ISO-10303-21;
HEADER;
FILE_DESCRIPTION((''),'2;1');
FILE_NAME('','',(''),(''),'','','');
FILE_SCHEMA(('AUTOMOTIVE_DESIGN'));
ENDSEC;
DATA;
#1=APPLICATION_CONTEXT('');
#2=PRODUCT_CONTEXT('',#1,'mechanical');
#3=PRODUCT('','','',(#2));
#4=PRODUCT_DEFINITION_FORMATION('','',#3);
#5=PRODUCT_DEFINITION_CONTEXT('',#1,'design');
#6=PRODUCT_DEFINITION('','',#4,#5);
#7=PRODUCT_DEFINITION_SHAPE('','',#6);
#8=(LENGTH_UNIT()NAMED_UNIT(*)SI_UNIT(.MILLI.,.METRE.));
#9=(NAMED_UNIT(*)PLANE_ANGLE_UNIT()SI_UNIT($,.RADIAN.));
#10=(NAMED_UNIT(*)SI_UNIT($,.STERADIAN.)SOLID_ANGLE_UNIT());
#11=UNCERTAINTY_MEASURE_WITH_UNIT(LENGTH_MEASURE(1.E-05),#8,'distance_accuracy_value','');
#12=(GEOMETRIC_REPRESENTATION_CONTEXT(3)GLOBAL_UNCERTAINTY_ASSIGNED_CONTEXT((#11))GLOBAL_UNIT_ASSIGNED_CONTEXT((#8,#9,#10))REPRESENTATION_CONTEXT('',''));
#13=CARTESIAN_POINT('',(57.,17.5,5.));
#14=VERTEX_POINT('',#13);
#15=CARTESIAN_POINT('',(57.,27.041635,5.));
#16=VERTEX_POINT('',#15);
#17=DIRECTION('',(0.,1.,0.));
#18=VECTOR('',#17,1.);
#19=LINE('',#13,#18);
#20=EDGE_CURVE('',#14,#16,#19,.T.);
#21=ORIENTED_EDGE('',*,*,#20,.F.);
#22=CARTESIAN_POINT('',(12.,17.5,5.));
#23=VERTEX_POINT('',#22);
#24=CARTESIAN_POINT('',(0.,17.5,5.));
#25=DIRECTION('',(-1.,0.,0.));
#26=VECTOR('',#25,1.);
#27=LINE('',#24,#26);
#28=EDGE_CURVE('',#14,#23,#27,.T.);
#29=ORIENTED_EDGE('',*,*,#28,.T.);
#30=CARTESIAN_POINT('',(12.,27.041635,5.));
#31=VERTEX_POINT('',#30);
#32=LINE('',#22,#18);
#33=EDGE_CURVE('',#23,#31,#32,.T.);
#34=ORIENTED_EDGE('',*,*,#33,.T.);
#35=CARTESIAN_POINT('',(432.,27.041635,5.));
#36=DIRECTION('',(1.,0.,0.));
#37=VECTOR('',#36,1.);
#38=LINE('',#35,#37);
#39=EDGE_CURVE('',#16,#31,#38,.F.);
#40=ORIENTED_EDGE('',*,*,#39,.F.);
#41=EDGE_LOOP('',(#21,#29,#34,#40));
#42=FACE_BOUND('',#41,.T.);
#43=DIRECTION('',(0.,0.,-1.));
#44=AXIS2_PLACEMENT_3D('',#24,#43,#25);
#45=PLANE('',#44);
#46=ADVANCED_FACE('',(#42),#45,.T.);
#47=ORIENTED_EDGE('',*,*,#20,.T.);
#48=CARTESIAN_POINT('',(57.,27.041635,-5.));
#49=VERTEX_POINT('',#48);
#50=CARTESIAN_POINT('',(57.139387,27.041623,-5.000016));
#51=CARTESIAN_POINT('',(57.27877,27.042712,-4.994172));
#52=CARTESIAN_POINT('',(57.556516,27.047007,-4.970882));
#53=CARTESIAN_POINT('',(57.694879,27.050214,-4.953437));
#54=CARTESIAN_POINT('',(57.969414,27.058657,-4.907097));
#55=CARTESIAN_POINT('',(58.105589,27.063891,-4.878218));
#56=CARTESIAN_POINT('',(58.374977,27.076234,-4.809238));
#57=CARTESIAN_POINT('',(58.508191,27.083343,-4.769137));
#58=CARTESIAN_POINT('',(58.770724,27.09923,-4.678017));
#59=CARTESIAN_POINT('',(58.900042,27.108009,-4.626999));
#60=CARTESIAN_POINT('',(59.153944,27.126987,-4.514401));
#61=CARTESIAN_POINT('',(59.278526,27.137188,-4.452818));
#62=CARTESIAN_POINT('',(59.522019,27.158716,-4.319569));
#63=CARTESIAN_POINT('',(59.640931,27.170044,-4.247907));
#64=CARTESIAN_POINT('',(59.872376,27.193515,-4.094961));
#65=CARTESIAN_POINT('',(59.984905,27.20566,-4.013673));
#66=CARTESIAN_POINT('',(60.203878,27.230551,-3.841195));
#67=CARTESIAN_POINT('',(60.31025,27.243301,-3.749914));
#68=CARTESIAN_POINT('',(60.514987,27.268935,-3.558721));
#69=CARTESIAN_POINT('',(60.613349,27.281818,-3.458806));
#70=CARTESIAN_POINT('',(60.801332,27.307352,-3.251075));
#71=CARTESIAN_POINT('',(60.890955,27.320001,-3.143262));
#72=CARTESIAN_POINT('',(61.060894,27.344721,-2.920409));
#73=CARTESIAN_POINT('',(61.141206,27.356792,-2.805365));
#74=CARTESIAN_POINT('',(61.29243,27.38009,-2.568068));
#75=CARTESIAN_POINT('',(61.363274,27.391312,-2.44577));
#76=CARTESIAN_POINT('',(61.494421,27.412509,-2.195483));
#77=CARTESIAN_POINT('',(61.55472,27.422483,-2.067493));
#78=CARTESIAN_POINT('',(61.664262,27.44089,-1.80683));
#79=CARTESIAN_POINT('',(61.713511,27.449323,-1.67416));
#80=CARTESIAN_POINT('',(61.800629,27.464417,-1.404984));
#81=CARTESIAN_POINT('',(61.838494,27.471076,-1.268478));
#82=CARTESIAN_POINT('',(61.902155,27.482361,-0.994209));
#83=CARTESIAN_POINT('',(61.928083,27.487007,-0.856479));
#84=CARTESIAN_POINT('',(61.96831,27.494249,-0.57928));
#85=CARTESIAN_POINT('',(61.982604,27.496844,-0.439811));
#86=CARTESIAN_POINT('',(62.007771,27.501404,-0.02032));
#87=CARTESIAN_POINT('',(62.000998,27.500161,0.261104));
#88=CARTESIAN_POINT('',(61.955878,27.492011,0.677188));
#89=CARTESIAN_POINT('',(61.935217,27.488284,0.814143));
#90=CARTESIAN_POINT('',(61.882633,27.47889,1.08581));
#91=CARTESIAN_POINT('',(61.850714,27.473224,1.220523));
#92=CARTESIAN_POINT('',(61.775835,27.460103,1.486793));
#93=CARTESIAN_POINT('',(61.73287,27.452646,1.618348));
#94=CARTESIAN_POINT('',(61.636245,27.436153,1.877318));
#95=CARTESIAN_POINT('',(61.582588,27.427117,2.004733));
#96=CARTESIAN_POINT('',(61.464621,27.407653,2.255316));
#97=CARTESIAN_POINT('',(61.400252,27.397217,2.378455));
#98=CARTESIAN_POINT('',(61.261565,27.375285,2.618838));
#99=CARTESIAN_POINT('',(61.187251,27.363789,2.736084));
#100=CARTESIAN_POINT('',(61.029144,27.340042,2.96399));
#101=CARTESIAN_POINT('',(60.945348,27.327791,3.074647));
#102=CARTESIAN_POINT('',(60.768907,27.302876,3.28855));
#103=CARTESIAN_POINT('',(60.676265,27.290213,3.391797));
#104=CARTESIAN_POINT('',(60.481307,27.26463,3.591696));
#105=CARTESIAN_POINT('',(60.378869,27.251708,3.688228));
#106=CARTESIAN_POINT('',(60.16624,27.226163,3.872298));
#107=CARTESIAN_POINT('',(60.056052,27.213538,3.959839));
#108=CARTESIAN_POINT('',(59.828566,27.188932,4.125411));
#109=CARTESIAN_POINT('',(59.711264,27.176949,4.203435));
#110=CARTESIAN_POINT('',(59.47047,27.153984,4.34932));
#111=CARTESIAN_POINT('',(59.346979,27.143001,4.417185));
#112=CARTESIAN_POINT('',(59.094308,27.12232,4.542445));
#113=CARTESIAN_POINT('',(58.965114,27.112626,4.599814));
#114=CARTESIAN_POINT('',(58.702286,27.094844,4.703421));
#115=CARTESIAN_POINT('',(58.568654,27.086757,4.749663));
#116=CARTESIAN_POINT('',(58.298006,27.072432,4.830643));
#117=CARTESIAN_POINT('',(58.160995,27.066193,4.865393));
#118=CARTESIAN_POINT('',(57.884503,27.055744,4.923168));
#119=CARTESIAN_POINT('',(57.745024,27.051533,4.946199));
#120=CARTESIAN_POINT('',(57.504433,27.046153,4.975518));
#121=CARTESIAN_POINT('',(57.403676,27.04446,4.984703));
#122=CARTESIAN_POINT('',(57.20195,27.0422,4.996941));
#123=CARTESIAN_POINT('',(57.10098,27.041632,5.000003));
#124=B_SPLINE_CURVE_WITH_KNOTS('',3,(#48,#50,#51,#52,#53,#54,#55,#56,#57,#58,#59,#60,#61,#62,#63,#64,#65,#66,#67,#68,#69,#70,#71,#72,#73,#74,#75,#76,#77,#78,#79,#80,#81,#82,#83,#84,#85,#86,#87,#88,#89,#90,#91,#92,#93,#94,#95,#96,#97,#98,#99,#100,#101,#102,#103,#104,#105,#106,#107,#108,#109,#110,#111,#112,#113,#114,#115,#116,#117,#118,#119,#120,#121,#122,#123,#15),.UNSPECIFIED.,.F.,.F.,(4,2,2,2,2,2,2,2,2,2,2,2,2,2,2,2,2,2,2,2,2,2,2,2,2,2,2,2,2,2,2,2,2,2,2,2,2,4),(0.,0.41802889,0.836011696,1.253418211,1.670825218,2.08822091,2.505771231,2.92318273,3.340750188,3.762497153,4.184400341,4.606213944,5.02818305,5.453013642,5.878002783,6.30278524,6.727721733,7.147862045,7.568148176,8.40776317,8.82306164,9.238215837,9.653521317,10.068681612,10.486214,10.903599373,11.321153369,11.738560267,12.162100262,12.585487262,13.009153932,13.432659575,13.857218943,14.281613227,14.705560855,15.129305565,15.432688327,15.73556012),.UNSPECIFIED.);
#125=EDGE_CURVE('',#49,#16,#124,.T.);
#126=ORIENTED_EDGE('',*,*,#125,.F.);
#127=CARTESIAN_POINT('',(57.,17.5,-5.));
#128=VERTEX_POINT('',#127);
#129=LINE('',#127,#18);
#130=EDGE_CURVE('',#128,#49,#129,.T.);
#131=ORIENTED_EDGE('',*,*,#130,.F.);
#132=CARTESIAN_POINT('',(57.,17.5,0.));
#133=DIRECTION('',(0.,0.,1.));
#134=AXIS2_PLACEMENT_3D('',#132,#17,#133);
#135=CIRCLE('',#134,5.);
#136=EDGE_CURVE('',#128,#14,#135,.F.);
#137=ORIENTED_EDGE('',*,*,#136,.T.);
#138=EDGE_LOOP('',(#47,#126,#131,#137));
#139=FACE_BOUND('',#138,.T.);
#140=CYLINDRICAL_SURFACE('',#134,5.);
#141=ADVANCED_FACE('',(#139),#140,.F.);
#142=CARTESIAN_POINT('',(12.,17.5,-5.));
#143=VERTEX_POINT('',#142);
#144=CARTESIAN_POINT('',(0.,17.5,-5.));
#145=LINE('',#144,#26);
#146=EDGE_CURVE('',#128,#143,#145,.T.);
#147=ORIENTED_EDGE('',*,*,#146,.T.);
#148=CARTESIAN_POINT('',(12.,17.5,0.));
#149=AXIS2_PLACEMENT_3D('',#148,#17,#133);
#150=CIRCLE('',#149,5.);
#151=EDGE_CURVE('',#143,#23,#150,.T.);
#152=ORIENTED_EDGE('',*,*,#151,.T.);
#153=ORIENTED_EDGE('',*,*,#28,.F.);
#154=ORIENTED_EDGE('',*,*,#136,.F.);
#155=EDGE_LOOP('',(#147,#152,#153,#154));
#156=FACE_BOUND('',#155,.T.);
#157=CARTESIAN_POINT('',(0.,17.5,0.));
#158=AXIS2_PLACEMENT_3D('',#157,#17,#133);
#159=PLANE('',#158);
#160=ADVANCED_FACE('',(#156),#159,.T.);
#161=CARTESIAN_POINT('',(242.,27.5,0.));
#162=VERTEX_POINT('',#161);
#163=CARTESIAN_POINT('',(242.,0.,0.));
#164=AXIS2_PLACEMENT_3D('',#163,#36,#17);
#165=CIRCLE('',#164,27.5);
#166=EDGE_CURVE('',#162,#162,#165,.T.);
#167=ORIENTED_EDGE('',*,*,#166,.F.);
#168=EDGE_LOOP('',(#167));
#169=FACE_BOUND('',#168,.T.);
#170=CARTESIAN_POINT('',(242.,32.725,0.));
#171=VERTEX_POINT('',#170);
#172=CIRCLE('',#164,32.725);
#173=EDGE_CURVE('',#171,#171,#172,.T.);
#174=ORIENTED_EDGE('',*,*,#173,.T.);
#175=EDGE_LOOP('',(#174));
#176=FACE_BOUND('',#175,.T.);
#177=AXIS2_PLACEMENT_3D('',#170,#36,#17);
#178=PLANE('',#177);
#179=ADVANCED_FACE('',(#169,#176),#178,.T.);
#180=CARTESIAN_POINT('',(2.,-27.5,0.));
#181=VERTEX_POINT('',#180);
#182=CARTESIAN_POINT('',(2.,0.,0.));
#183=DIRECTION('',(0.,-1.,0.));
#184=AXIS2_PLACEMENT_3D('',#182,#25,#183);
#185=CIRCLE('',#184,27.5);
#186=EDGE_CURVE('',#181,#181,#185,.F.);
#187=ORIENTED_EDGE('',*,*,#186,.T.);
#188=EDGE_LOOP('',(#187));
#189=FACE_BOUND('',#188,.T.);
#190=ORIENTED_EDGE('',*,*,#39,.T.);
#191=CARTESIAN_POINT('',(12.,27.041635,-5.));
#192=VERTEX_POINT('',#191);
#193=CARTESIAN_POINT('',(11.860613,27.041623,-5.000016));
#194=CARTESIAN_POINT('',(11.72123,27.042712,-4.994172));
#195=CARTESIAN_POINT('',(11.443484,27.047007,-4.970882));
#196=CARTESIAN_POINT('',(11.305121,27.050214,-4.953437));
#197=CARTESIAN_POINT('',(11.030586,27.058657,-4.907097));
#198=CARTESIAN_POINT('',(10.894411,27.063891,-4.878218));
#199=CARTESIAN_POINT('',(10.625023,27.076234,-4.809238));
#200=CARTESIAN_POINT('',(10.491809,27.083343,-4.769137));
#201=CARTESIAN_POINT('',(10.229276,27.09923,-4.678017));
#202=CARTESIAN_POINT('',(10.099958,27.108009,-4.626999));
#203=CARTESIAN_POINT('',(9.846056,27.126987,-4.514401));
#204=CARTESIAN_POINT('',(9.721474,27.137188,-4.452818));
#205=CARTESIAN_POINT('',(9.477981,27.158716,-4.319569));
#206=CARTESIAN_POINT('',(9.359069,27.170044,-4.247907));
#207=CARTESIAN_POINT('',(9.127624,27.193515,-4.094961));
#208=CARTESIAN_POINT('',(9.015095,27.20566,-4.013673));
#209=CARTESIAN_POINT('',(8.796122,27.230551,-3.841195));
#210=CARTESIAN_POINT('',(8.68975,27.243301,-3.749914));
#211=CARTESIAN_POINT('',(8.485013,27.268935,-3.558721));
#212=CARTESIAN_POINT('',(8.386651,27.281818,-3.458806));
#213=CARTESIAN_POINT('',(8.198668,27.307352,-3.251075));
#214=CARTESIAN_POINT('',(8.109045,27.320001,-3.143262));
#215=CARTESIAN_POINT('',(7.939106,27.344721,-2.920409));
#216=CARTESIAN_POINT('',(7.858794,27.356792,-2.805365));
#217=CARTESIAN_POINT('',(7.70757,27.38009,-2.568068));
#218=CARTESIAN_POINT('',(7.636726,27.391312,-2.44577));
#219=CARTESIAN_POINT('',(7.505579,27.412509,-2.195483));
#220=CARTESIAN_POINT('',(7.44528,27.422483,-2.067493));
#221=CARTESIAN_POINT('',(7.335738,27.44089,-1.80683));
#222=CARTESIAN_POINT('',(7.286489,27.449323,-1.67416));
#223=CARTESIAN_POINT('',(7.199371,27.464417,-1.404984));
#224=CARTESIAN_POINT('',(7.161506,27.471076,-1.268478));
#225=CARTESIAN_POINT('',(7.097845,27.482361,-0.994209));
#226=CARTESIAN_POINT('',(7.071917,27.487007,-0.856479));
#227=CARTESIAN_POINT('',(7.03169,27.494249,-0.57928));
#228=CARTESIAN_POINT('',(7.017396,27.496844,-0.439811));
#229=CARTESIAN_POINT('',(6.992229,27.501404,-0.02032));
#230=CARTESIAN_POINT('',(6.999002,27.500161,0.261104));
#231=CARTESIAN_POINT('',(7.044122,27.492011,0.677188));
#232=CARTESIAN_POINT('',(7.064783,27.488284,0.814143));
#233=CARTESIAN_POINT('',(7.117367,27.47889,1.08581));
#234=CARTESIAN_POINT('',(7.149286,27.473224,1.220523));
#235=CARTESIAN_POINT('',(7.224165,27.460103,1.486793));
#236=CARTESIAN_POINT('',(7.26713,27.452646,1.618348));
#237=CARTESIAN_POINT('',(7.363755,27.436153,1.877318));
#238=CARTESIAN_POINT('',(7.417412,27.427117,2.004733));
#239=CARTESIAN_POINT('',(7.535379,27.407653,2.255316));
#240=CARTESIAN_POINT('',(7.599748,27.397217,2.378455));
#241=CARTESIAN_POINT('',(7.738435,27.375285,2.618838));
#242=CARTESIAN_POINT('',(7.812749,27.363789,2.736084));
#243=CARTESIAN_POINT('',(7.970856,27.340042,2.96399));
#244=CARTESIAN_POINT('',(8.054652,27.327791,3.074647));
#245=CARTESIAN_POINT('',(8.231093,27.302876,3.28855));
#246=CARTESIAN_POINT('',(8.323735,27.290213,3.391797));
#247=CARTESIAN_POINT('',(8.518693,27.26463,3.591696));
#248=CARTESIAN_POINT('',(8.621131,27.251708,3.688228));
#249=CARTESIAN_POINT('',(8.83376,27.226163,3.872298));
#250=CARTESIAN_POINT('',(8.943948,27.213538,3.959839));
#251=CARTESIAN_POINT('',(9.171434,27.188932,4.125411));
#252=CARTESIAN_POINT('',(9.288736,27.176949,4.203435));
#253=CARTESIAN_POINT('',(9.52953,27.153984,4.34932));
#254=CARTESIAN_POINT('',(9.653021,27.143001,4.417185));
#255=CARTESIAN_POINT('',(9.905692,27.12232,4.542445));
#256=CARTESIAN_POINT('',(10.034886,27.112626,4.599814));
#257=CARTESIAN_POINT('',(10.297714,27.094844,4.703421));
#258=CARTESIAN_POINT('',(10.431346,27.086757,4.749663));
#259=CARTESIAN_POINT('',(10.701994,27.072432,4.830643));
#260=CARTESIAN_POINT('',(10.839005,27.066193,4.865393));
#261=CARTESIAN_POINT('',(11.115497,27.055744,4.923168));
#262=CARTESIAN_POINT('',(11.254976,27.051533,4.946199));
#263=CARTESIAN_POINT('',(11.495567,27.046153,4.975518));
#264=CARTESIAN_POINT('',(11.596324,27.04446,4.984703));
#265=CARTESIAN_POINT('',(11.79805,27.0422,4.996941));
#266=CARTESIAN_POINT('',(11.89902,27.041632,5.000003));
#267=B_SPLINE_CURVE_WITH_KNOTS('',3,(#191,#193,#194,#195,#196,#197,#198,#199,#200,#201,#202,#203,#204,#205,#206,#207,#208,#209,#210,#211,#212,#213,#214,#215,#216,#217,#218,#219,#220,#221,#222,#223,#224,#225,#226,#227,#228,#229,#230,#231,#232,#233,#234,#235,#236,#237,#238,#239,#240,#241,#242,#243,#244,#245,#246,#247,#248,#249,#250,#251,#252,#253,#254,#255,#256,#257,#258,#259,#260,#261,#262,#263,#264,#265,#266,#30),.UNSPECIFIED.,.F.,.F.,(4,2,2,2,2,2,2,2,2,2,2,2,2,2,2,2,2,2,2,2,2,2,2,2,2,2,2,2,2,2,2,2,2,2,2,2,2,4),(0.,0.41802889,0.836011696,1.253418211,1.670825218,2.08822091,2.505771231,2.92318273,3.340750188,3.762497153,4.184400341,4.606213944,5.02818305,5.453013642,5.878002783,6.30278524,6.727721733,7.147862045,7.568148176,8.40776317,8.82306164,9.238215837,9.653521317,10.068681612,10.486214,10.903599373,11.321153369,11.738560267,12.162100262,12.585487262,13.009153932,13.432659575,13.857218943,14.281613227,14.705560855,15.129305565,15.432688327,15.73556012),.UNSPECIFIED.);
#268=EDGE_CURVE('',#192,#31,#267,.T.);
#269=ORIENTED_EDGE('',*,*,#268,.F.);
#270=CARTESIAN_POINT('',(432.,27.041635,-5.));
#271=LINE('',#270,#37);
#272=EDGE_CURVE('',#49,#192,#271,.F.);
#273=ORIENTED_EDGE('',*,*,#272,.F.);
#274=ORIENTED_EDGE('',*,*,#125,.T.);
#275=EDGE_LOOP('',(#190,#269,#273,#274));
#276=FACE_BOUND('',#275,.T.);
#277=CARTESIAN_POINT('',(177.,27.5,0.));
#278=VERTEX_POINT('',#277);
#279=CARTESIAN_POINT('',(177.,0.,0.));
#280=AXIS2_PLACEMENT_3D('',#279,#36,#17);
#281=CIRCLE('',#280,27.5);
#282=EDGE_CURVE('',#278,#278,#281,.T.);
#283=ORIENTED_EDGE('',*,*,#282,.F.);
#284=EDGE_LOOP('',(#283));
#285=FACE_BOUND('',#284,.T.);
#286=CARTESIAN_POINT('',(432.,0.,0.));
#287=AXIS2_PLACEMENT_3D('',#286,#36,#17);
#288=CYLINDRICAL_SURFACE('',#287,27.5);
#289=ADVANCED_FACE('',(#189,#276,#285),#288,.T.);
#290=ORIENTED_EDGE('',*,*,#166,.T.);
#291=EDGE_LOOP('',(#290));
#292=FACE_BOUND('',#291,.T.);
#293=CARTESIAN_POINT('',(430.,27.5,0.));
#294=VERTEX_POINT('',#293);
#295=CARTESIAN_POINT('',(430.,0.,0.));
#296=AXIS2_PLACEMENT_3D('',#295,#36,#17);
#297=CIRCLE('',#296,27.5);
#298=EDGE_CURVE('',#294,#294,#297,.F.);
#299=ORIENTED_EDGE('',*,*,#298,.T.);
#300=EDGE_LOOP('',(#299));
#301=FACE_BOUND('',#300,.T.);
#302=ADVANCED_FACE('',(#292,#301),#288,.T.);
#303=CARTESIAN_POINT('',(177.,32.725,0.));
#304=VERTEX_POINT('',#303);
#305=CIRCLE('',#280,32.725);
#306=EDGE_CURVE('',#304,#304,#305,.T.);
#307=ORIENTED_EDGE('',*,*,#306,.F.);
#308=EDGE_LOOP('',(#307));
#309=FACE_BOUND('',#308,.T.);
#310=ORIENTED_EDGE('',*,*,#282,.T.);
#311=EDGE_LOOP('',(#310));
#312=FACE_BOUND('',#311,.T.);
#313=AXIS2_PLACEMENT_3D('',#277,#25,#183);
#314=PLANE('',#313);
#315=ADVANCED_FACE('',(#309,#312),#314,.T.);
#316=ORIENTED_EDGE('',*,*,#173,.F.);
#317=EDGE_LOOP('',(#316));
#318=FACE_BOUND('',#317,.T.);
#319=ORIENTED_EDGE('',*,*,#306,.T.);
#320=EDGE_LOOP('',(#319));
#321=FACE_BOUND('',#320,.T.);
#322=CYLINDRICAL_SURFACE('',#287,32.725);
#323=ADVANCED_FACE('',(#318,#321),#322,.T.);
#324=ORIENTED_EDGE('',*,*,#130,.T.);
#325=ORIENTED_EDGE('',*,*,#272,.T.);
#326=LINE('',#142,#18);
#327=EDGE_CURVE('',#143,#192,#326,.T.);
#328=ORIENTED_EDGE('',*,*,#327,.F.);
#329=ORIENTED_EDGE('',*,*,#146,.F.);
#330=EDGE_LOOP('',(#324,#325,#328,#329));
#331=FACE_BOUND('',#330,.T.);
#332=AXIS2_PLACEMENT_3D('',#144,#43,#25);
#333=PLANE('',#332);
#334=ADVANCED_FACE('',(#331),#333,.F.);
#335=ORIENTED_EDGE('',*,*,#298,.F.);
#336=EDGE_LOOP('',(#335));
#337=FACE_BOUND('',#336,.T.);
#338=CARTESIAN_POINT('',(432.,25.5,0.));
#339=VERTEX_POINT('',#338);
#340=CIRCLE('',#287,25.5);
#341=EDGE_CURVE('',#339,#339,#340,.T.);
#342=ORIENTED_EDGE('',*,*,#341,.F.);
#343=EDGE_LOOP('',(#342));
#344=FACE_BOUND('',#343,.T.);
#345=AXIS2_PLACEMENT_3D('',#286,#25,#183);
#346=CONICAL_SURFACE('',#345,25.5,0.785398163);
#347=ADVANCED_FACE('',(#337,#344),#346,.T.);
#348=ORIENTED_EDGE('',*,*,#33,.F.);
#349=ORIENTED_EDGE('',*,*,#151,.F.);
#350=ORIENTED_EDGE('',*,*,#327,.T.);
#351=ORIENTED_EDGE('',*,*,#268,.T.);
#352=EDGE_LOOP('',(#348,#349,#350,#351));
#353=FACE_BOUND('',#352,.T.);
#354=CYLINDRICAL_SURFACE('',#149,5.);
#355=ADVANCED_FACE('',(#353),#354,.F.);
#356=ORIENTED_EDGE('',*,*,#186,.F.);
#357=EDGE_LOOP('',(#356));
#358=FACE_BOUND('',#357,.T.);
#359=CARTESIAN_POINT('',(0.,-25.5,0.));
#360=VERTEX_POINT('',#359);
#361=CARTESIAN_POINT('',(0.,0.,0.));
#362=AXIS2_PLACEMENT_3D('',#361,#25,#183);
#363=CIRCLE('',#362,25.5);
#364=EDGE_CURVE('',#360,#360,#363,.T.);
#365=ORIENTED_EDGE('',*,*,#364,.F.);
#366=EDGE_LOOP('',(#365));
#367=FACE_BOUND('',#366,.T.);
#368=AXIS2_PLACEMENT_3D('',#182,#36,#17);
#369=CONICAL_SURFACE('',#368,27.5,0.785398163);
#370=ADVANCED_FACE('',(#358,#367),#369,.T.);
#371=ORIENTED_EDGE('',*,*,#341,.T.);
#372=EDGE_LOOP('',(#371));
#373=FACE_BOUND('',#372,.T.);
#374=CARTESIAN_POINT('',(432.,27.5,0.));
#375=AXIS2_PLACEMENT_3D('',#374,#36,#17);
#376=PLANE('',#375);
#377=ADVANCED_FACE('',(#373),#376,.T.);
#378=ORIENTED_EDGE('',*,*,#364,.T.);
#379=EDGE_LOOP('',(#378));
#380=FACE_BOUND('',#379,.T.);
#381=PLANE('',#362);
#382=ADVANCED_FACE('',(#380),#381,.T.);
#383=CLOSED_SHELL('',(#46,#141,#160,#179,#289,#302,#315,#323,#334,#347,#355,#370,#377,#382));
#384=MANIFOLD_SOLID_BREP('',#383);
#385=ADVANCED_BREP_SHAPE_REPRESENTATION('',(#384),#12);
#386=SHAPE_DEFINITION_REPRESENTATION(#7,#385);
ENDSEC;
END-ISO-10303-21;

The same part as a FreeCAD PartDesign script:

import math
import FreeCAD as App
import Part
import Sketcher

V = App.Vector
Q = App.Units.Quantity


def edges_at(feature, points):
    """Names of the edges that pass closest to the given points."""
    edges = feature.Shape.Edges
    near = lambda p: min(range(len(edges)), key=lambda i: edges[i].distToShape(Part.Vertex(*p))[0])
    return sorted({f"Edge{near(p) + 1}" for p in points})

doc = App.newDocument("Part")
body = doc.addObject("PartDesign::Body", "Body")

sketch1 = body.newObject("Sketcher::SketchObject", "Sketch")
sketch1.AttachmentSupport = (doc.getObject("XY_Plane"), [""])
sketch1.MapMode = "FlatFace"
sketch1.addGeometry([
    Part.LineSegment(V(0, 27.5, 0), V(0, 0, 0)),
    Part.LineSegment(V(0, 0, 0), V(432, 0, 0)),
    Part.LineSegment(V(432, 0, 0), V(432, 27.5, 0)),
    Part.LineSegment(V(432, 27.5, 0), V(242, 27.5, 0)),
    Part.LineSegment(V(242, 27.5, 0), V(242, 32.725, 0)),
    Part.LineSegment(V(242, 32.725, 0), V(177, 32.725, 0)),
    Part.LineSegment(V(177, 32.725, 0), V(177, 27.5, 0)),
    Part.LineSegment(V(177, 27.5, 0), V(0, 27.5, 0)),
], False)
sketch1.addConstraint([
    Sketcher.Constraint("Coincident", 0, 2, 1, 1),
    Sketcher.Constraint("Coincident", 1, 2, 2, 1),
    Sketcher.Constraint("Coincident", 2, 2, 3, 1),
    Sketcher.Constraint("Coincident", 3, 2, 4, 1),
    Sketcher.Constraint("Coincident", 4, 2, 5, 1),
    Sketcher.Constraint("Coincident", 5, 2, 6, 1),
    Sketcher.Constraint("Coincident", 6, 2, 7, 1),
    Sketcher.Constraint("Coincident", 7, 2, 0, 1),
    Sketcher.Constraint("Vertical", 0),
    Sketcher.Constraint("Horizontal", 1),
    Sketcher.Constraint("Vertical", 2),
    Sketcher.Constraint("Horizontal", 3),
    Sketcher.Constraint("Vertical", 4),
    Sketcher.Constraint("Horizontal", 5),
    Sketcher.Constraint("Vertical", 6),
    Sketcher.Constraint("Horizontal", 7),
    Sketcher.Constraint("Coincident", 0, 2, -1, 1),
    Sketcher.Constraint("Horizontal", 3, 2, 6, 2),
    Sketcher.Constraint("DistanceX", 1, 1, 1, 2, Q("432 mm")),
    Sketcher.Constraint("DistanceX", 3, 2, 3, 1, Q("190 mm")),
    Sketcher.Constraint("DistanceX", 5, 2, 5, 1, Q("65 mm")),
    Sketcher.Constraint("DistanceY", 0, 2, 0, 1, Q("27.5 mm")),
    Sketcher.Constraint("DistanceY", 4, 1, 4, 2, Q("5.225 mm")),
])
revolution = body.newObject("PartDesign::Revolution", "Revolution")
revolution.Profile = sketch1
revolution.ReferenceAxis = (sketch1, ["H_Axis"])
revolution.Angle = 360
doc.recompute()

chamfer = body.newObject("PartDesign::Chamfer", "Chamfer")
chamfer.Base = (revolution, edges_at(revolution, [(432, -27.5, 0), (0, -27.5, 0)]))
chamfer.Size = 2

sketch2 = body.newObject("Sketcher::SketchObject", "Sketch001")
sketch2.AttachmentSupport = (doc.getObject("XZ_Plane"), [""])
sketch2.MapMode = "FlatFace"
sketch2.AttachmentOffset = App.Placement(V(0, 0, -27.5), App.Rotation())
sketch2.addGeometry([
    Part.LineSegment(V(57, -5, 0), V(12, -5, 0)),
    Part.ArcOfCircle(Part.Circle(V(12, 0, 0), V(0, 0, 1), 5), math.radians(90), math.radians(270)),
    Part.LineSegment(V(12, 5, 0), V(57, 5, 0)),
    Part.ArcOfCircle(Part.Circle(V(57, 0, 0), V(0, 0, 1), 5), math.radians(-90), math.radians(90)),
], False)
sketch2.addConstraint([
    Sketcher.Constraint("Tangent", 0, 2, 1, 2),
    Sketcher.Constraint("Tangent", 1, 1, 2, 1),
    Sketcher.Constraint("Tangent", 2, 2, 3, 2),
    Sketcher.Constraint("Tangent", 3, 1, 0, 1),
    Sketcher.Constraint("Horizontal", 0),
    Sketcher.Constraint("Horizontal", 2),
    Sketcher.Constraint("PointOnObject", 1, 3, -1),
    Sketcher.Constraint("Radius", 1, Q("5 mm")),
    Sketcher.Constraint("DistanceX", 0, 2, 0, 1, Q("45 mm")),
    Sketcher.Constraint("DistanceX", -1, 1, 1, 3, Q("12 mm")),
])
pocket1 = body.newObject("PartDesign::Pocket", "Pocket")
pocket1.Profile = sketch2
pocket1.Length = 10
pocket1.Reversed = True

doc.recompute()
